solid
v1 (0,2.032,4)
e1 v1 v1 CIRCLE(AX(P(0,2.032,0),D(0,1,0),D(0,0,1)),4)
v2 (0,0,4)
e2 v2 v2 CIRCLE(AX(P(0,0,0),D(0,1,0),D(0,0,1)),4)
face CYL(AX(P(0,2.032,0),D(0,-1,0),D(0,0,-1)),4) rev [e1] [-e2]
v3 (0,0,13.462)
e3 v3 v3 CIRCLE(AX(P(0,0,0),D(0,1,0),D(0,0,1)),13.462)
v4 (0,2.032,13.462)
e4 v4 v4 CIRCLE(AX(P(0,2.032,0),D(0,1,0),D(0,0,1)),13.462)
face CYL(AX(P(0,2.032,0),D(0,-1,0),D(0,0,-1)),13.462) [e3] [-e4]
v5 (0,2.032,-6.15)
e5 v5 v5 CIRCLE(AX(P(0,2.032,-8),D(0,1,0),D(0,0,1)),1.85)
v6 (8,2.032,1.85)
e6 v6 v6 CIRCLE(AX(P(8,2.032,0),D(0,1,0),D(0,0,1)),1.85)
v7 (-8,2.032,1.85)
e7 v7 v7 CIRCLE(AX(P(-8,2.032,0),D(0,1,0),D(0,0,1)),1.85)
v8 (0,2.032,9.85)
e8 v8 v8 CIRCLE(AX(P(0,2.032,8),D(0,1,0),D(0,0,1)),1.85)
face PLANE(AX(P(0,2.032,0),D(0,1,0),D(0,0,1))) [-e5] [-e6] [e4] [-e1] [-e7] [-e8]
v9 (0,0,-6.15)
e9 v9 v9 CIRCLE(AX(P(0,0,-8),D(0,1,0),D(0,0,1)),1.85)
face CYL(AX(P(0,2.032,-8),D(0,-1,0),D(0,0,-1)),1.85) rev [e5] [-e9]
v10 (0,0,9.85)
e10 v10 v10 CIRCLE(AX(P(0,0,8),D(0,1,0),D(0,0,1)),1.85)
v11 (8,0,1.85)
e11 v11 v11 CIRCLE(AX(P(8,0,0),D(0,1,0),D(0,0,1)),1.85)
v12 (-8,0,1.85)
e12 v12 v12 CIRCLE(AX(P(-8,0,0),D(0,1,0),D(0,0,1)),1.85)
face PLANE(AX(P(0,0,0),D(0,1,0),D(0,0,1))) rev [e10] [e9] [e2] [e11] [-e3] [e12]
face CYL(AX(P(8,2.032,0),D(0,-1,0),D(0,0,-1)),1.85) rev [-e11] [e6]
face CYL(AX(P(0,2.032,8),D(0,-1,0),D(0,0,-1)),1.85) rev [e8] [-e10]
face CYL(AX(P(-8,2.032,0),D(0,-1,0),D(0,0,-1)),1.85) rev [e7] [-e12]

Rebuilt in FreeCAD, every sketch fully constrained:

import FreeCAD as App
import Part
import Sketcher

V = App.Vector

doc = App.newDocument("Part")
body = doc.addObject("PartDesign::Body", "Body")

# Sketch on XZ plane
sketch1 = doc.addObject("Sketcher::SketchObject", "Sketch")
body.addObject(sketch1)
sketch1.AttachmentSupport = (doc.XZ_Plane, [""])
sketch1.MapMode = "FlatFace"
sketch1.addGeometry([
    Part.Circle(V(0, 0, 0), V(0, 0, 1), 13.462),  # 0
    Part.Circle(V(0, -8, 0), V(0, 0, 1), 1.85),  # 1
    Part.Circle(V(-8, 0, 0), V(0, 0, 1), 1.85),  # 2
    Part.Circle(V(0, 0, 0), V(0, 0, 1), 4),  # 3
    Part.Circle(V(0, 8, 0), V(0, 0, 1), 1.85),  # 4
    Part.Circle(V(8, 0, 0), V(0, 0, 1), 1.85),  # 5
], False)
sketch1.addConstraint([
    Sketcher.Constraint("Coincident", 0, 3, -1, 1),
    Sketcher.Constraint("Coincident", 3, 3, -1, 1),
    Sketcher.Constraint("Equal", 1, 2),
    Sketcher.Constraint("Equal", 2, 4),
    Sketcher.Constraint("Equal", 4, 5),
    Sketcher.Constraint("Symmetric", 1, 3, 4, 3, -1, 1),
    Sketcher.Constraint("Symmetric", 2, 3, 5, 3, -1, 1),
    Sketcher.Constraint("PointOnObject", 1, 3, -2),
    Sketcher.Constraint("PointOnObject", 2, 3, -1),
    Sketcher.Constraint("Diameter", 3, 8.0),
    Sketcher.Constraint("Diameter", 1, 3.7),
    Sketcher.Constraint("Diameter", 0, 26.924),
    Sketcher.Constraint("DistanceY", 1, 3, -1, 1, 8.0),
    Sketcher.Constraint("DistanceX", 2, 3, -1, 1, 8.0),
])
pad1 = doc.addObject("PartDesign::Pad", "Pad")
body.addObject(pad1)
pad1.Profile = sketch1
pad1.Length = 2.032
pad1.Reversed = True

doc.recompute()
